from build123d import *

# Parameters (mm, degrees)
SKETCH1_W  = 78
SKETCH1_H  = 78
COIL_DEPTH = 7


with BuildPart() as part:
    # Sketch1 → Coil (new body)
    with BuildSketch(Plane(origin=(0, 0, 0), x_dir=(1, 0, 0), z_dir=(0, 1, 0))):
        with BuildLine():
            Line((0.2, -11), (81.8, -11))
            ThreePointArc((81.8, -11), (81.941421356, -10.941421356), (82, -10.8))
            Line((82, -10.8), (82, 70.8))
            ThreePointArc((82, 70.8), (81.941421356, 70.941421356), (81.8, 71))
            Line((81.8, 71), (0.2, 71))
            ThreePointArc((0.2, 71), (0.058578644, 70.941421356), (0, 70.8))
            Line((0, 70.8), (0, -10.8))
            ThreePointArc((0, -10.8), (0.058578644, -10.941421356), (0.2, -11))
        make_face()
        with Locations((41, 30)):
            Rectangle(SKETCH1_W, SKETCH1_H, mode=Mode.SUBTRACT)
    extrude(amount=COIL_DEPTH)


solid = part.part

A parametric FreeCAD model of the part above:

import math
import FreeCAD as App
import Part
import Sketcher
from FreeCAD import Vector

doc = App.newDocument("Part")
body = doc.addObject("PartDesign::Body", "Body")

# Sketch on XZ plane
sketch1 = body.newObject("Sketcher::SketchObject", "Sketch")
sketch1.AttachmentSupport = (doc.getObject("XZ_Plane"), [""])
sketch1.MapMode = "FlatFace"
sketch1.addGeometry([
    Part.LineSegment(Vector(0.2, 11, 0), Vector(81.8, 11, 0)),  # 0
    Part.ArcOfCircle(Part.Circle(Vector(81.8, 10.8, 0), Vector(0, 0, 1), 0.2), math.radians(0), math.radians(90)),  # 1
    Part.LineSegment(Vector(82, 10.8, 0), Vector(82, -70.8, 0)),  # 2
    Part.ArcOfCircle(Part.Circle(Vector(81.8, -70.8, 0), Vector(0, 0, 1), 0.2), math.radians(-90), math.radians(0)),  # 3
    Part.LineSegment(Vector(81.8, -71, 0), Vector(0.2, -71, 0)),  # 4
    Part.ArcOfCircle(Part.Circle(Vector(0.2, -70.8, 0), Vector(0, 0, 1), 0.2), math.radians(-180), math.radians(-90)),  # 5
    Part.LineSegment(Vector(0, -70.8, 0), Vector(0, 10.8, 0)),  # 6
    Part.ArcOfCircle(Part.Circle(Vector(0.2, 10.8, 0), Vector(0, 0, 1), 0.2), math.radians(90), math.radians(180)),  # 7
    Part.LineSegment(Vector(80, 9, 0), Vector(2, 9, 0)),  # 8
    Part.LineSegment(Vector(2, 9, 0), Vector(2, -69, 0)),  # 9
    Part.LineSegment(Vector(2, -69, 0), Vector(80, -69, 0)),  # 10
    Part.LineSegment(Vector(80, -69, 0), Vector(80, 9, 0)),  # 11
], False)
sketch1.addConstraint([
    Sketcher.Constraint("Tangent", 0, 2, 1, 2),
    Sketcher.Constraint("Tangent", 1, 1, 2, 1),
    Sketcher.Constraint("Tangent", 2, 2, 3, 2),
    Sketcher.Constraint("Tangent", 3, 1, 4, 1),
    Sketcher.Constraint("Tangent", 4, 2, 5, 2),
    Sketcher.Constraint("Tangent", 5, 1, 6, 1),
    Sketcher.Constraint("Tangent", 6, 2, 7, 2),
    Sketcher.Constraint("Tangent", 7, 1, 0, 1),
    Sketcher.Constraint("Coincident", 8, 2, 9, 1),
    Sketcher.Constraint("Coincident", 9, 2, 10, 1),
    Sketcher.Constraint("Coincident", 10, 2, 11, 1),
    Sketcher.Constraint("Coincident", 11, 2, 8, 1),
    Sketcher.Constraint("Horizontal", 0),
    Sketcher.Constraint("Vertical", 2),
    Sketcher.Constraint("Horizontal", 4),
    Sketcher.Constraint("Vertical", 6),
    Sketcher.Constraint("Horizontal", 8),
    Sketcher.Constraint("Vertical", 9),
    Sketcher.Constraint("Horizontal", 10),
    Sketcher.Constraint("Vertical", 11),
    Sketcher.Constraint("Equal", 1, 3),
    Sketcher.Constraint("Equal", 3, 5),
    Sketcher.Constraint("Equal", 5, 7),
    Sketcher.Constraint("PointOnObject", 5, 1, -2),
    Sketcher.Constraint("Equal", 4, 2),
    Sketcher.Constraint("Equal", 10, 9),
    Sketcher.Constraint("Radius", 1, 0.2),
    Sketcher.Constraint("DistanceX", 8, 2, 8, 1, 78.0),
    Sketcher.Constraint("DistanceX", 0, 1, 0, 2, 81.6),
    Sketcher.Constraint("DistanceY", -1, 1, 0, 2, 11.0),
    Sketcher.Constraint("DistanceX", -1, 1, 8, 2, 2.0),
    Sketcher.Constraint("DistanceY", -1, 1, 8, 2, 9.0),
])
pad1 = body.newObject("PartDesign::Pad", "Pad")
pad1.Profile = sketch1
pad1.Length = 7
pad1.Reversed = True

doc.recompute()
